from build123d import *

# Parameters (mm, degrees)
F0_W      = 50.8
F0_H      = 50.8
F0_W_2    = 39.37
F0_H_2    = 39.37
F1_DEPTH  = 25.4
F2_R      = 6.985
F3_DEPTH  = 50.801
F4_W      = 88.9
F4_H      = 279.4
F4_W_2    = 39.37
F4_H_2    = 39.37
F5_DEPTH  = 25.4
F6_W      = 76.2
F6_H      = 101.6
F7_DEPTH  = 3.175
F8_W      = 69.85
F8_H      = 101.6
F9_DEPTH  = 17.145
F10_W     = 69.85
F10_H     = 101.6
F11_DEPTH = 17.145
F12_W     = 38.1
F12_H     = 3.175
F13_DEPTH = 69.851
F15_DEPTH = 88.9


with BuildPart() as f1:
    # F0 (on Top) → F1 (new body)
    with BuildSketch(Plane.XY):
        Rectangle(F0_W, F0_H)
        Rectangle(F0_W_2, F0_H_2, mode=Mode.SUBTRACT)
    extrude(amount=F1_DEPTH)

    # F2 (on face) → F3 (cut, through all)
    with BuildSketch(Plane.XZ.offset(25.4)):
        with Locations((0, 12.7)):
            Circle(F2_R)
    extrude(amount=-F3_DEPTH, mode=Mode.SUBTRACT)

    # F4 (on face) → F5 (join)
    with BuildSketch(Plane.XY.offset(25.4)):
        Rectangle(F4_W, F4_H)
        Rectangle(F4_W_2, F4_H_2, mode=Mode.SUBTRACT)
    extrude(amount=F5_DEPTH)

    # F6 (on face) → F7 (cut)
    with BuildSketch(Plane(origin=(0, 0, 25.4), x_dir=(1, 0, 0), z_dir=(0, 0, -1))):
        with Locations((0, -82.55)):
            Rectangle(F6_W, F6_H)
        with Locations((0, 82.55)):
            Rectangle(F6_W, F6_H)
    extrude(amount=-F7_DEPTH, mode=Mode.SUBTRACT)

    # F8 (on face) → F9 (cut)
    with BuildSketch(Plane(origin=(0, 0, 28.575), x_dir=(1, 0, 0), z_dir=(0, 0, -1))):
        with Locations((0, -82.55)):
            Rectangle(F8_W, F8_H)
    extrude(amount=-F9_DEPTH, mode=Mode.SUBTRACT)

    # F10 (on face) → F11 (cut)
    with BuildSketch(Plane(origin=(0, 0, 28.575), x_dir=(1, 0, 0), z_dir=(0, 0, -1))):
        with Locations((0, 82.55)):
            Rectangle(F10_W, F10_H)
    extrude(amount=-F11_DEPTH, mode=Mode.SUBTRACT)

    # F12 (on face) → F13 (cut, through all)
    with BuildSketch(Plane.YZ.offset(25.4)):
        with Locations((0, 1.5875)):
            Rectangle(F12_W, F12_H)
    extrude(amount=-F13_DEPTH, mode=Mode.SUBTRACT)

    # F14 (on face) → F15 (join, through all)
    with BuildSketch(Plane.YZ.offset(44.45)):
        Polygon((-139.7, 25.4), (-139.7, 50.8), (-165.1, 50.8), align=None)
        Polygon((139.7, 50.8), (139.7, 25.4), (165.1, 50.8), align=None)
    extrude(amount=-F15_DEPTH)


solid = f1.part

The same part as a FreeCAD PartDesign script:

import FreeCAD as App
import Part
import Sketcher
from FreeCAD import Vector
Q = App.Units.Quantity


def add_polygon(sketch, points):
    """Adds a closed chain of lines whose ends are joined by coincident constraints."""
    first, n = sketch.GeometryCount, len(points)
    for a, b in zip(points, points[1:] + points[:1]):
        sketch.addGeometry(Part.LineSegment(App.Vector(*a, 0), App.Vector(*b, 0)), False)
    for i in range(n):
        sketch.addConstraint(Sketcher.Constraint("Coincident", first + i, 2, first + (i + 1) % n, 1))

doc = App.newDocument("Part")
body = doc.addObject("PartDesign::Body", "Body")

# Sketch on XY plane
sketch1 = doc.addObject("Sketcher::SketchObject", "Sketch")
body.addObject(sketch1)
sketch1.AttachmentSupport = (doc.XY_Plane, [""])
sketch1.MapMode = "FlatFace"
add_polygon(sketch1, [(-25, 25), (-25, -25), (25, -25), (25, 25)])  # lines 0-3
add_polygon(sketch1, [(20, -20), (-20, -20), (-20, 20), (20, 20)])  # lines 4-7
sketch1.addConstraint([
    Sketcher.Constraint("Vertical", 0),
    Sketcher.Constraint("Horizontal", 1),
    Sketcher.Constraint("Vertical", 2),
    Sketcher.Constraint("Horizontal", 3),
    Sketcher.Constraint("Horizontal", 4),
    Sketcher.Constraint("Vertical", 5),
    Sketcher.Constraint("Horizontal", 6),
    Sketcher.Constraint("Vertical", 7),
    Sketcher.Constraint("Symmetric", 0, 2, 2, 2, -1, 1),
    Sketcher.Constraint("Symmetric", 4, 2, 6, 2, -1, 1),
    Sketcher.Constraint("Equal", 3, 0),
    Sketcher.Constraint("Equal", 6, 5),
    Sketcher.Constraint("DistanceX", 1, 1, 1, 2, Q("2 in")),
    Sketcher.Constraint("DistanceX", 4, 2, 4, 1, Q("1.55 in")),
])
pad1 = doc.addObject("PartDesign::Pad", "Pad")
body.addObject(pad1)
pad1.Profile = sketch1
pad1.Length = Q("1 in")

# Sketch on XZ plane
sketch2 = doc.addObject("Sketcher::SketchObject", "Sketch001")
body.addObject(sketch2)
sketch2.AttachmentSupport = (doc.XZ_Plane, [""])
sketch2.MapMode = "FlatFace"
sketch2.AttachmentOffset = App.Placement(Vector(0, 0, 1 * 25.4), App.Rotation())
sketch2.addGeometry(Part.Circle(Vector(0, 13, 0), Vector(0, 0, 1), 7), False)
sketch2.addConstraint([
    Sketcher.Constraint("PointOnObject", 0, 3, -2),
    Sketcher.Constraint("Diameter", 0, Q("0.55 in")),
    Sketcher.Constraint("DistanceY", -1, 1, 0, 3, Q("0.5 in")),
])
pocket1 = doc.addObject("PartDesign::Pocket", "Pocket")
body.addObject(pocket1)
pocket1.Profile = sketch2
pocket1.Type = "ThroughAll"

# Sketch on XY plane
sketch3 = doc.addObject("Sketcher::SketchObject", "Sketch002")
body.addObject(sketch3)
sketch3.AttachmentSupport = (doc.XY_Plane, [""])
sketch3.MapMode = "FlatFace"
sketch3.AttachmentOffset = App.Placement(Vector(0, 0, 1 * 25.4), App.Rotation())
add_polygon(sketch3, [(-44, 140), (-44, -140), (44, -140), (44, 140)])  # lines 0-3
add_polygon(sketch3, [(20, -20), (-20, -20), (-20, 20), (20, 20)])  # lines 4-7
sketch3.addConstraint([
    Sketcher.Constraint("Vertical", 0),
    Sketcher.Constraint("Horizontal", 1),
    Sketcher.Constraint("Vertical", 2),
    Sketcher.Constraint("Horizontal", 3),
    Sketcher.Constraint("Horizontal", 4),
    Sketcher.Constraint("Vertical", 5),
    Sketcher.Constraint("Horizontal", 6),
    Sketcher.Constraint("Vertical", 7),
    Sketcher.Constraint("Symmetric", 0, 2, 2, 2, -1, 1),
    Sketcher.Constraint("Symmetric", 4, 2, 6, 2, -1, 1),
    Sketcher.Constraint("Equal", 6, 5),
    Sketcher.Constraint("DistanceY", 0, 2, 0, 1, Q("11 in")),
    Sketcher.Constraint("DistanceX", 1, 1, 1, 2, Q("3.5 in")),
    Sketcher.Constraint("DistanceX", 4, 2, 4, 1, Q("1.55 in")),
])
pad2 = doc.addObject("PartDesign::Pad", "Pad001")
body.addObject(pad2)
pad2.Profile = sketch3
pad2.Length = Q("1 in")

# Sketch on XY plane
sketch4 = doc.addObject("Sketcher::SketchObject", "Sketch003")
body.addObject(sketch4)
sketch4.AttachmentSupport = (doc.XY_Plane, [""])
sketch4.MapMode = "FlatFace"
sketch4.AttachmentOffset = App.Placement(Vector(0, 0, 1 * 25.4), App.Rotation())
add_polygon(sketch4, [(-38, 32), (-38, 133), (38, 133), (38, 32)])  # lines 0-3
add_polygon(sketch4, [(-38, -133), (-38, -32), (38, -32), (38, -133)])  # lines 4-7
sketch4.addConstraint([
    Sketcher.Constraint("Vertical", 0),
    Sketcher.Constraint("Horizontal", 1),
    Sketcher.Constraint("Vertical", 2),
    Sketcher.Constraint("Horizontal", 3),
    Sketcher.Constraint("Vertical", 4),
    Sketcher.Constraint("Horizontal", 5),
    Sketcher.Constraint("Vertical", 6),
    Sketcher.Constraint("Horizontal", 7),
    Sketcher.Constraint("Symmetric", 2, 2, 4, 2, -1, 1),
    Sketcher.Constraint("Symmetric", 0, 2, 6, 2, -1, 1),
    Sketcher.Constraint("Vertical", 3, 2, 4, 2),
    Sketcher.Constraint("DistanceX", 1, 1, 1, 2, Q("3 in")),
    Sketcher.Constraint("DistanceY", 0, 1, 0, 2, Q("4 in")),
    Sketcher.Constraint("DistanceY", 4, 2, 3, 2, Q("2.5 in")),
])
pocket2 = doc.addObject("PartDesign::Pocket", "Pocket001")
body.addObject(pocket2)
pocket2.Profile = sketch4
pocket2.Length = Q("0.125 in")
pocket2.Reversed = True

# Sketch on XY plane
sketch5 = doc.addObject("Sketcher::SketchObject", "Sketch004")
body.addObject(sketch5)
sketch5.AttachmentSupport = (doc.XY_Plane, [""])
sketch5.MapMode = "FlatFace"
sketch5.AttachmentOffset = App.Placement(Vector(0, 0, 1.125 * 25.4), App.Rotation())
add_polygon(sketch5, [(-35, 32), (-35, 133), (35, 133), (35, 32)])  # lines 0-3
sketch5.addConstraint([
    Sketcher.Constraint("Vertical", 0),
    Sketcher.Constraint("Horizontal", 1),
    Sketcher.Constraint("Vertical", 2),
    Sketcher.Constraint("Horizontal", 3),
    Sketcher.Constraint("DistanceY", 0, 1, 0, 2, Q("4 in")),
    Sketcher.Constraint("DistanceX", 1, 1, 1, 2, Q("2.75 in")),
    Sketcher.Constraint("DistanceY", -1, 1, 0, 2, Q("5.25 in")),
    Sketcher.Constraint("DistanceX", 0, 2, -1, 1, Q("1.375 in")),
])
pocket3 = doc.addObject("PartDesign::Pocket", "Pocket002")
body.addObject(pocket3)
pocket3.Profile = sketch5
pocket3.Length = Q("0.675 in")
pocket3.Reversed = True

# Sketch on XY plane
sketch6 = doc.addObject("Sketcher::SketchObject", "Sketch005")
body.addObject(sketch6)
sketch6.AttachmentSupport = (doc.XY_Plane, [""])
sketch6.MapMode = "FlatFace"
sketch6.AttachmentOffset = App.Placement(Vector(0, 0, 1.125 * 25.4), App.Rotation())
add_polygon(sketch6, [(-35, -133), (-35, -32), (35, -32), (35, -133)])  # lines 0-3
sketch6.addConstraint([
    Sketcher.Constraint("Vertical", 0),
    Sketcher.Constraint("Horizontal", 1),
    Sketcher.Constraint("Vertical", 2),
    Sketcher.Constraint("Horizontal", 3),
    Sketcher.Constraint("DistanceY", 0, 1, 0, 2, Q("4 in")),
    Sketcher.Constraint("DistanceX", 1, 1, 1, 2, Q("2.75 in")),
    Sketcher.Constraint("DistanceY", 0, 2, -1, 1, Q("1.25 in")),
    Sketcher.Constraint("DistanceX", 0, 2, -1, 1, Q("1.375 in")),
])
pocket4 = doc.addObject("PartDesign::Pocket", "Pocket003")
body.addObject(pocket4)
pocket4.Profile = sketch6
pocket4.Length = Q("0.675 in")
pocket4.Reversed = True

# Sketch on YZ plane
sketch7 = doc.addObject("Sketcher::SketchObject", "Sketch006")
body.addObject(sketch7)
sketch7.AttachmentSupport = (doc.YZ_Plane, [""])
sketch7.MapMode = "FlatFace"
sketch7.AttachmentOffset = App.Placement(Vector(0, 0, 1 * 25.4), App.Rotation())
add_polygon(sketch7, [(-19.1, 3.2), (-19.1, 0), (19.1, 0), (19.1, 3.2)])  # lines 0-3
sketch7.addConstraint([
    Sketcher.Constraint("Vertical", 0),
    Sketcher.Constraint("Horizontal", 1),
    Sketcher.Constraint("Vertical", 2),
    Sketcher.Constraint("Horizontal", 3),
    Sketcher.Constraint("Symmetric", 0, 2, 1, 2, -1, 1),
    Sketcher.Constraint("DistanceX", 1, 1, 1, 2, Q("1.5 in")),
    Sketcher.Constraint("DistanceY", 0, 2, 0, 1, Q("0.125 in")),
])
pocket5 = doc.addObject("PartDesign::Pocket", "Pocket004")
body.addObject(pocket5)
pocket5.Profile = sketch7
pocket5.Type = "ThroughAll"

# Sketch on YZ plane
sketch8 = doc.addObject("Sketcher::SketchObject", "Sketch007")
body.addObject(sketch8)
sketch8.AttachmentSupport = (doc.YZ_Plane, [""])
sketch8.MapMode = "FlatFace"
sketch8.AttachmentOffset = App.Placement(Vector(0, 0, 1.75 * 25.4), App.Rotation())
add_polygon(sketch8, [(-140, 25), (-140, 51), (-165, 51)])  # lines 0-2
add_polygon(sketch8, [(140, 51), (140, 25), (165, 51)])  # lines 3-5
sketch8.addConstraint([
    Sketcher.Constraint("Vertical", 0),
    Sketcher.Constraint("Horizontal", 1),
    Sketcher.Constraint("Vertical", 3),
    Sketcher.Constraint("Horizontal", 5),
    Sketcher.Constraint("Symmetric", 2, 2, 3, 2, -2),
    Sketcher.Constraint("Symmetric", 1, 2, 4, 2, -2),
    Sketcher.Constraint("Perpendicular", 2, 4),
    Sketcher.Constraint("DistanceX", 1, 2, 1, 1, Q("1 in")),
    Sketcher.Constraint("DistanceY", -1, 1, 0, 2, Q("2 in")),
    Sketcher.Constraint("DistanceX", 2, 2, 3, 2, Q("11 in")),
])
pad3 = doc.addObject("PartDesign::Pad", "Pad002")
body.addObject(pad3)
pad3.Profile = sketch8
pad3.Type = "UpToLast"
pad3.Reversed = True

doc.recompute()
